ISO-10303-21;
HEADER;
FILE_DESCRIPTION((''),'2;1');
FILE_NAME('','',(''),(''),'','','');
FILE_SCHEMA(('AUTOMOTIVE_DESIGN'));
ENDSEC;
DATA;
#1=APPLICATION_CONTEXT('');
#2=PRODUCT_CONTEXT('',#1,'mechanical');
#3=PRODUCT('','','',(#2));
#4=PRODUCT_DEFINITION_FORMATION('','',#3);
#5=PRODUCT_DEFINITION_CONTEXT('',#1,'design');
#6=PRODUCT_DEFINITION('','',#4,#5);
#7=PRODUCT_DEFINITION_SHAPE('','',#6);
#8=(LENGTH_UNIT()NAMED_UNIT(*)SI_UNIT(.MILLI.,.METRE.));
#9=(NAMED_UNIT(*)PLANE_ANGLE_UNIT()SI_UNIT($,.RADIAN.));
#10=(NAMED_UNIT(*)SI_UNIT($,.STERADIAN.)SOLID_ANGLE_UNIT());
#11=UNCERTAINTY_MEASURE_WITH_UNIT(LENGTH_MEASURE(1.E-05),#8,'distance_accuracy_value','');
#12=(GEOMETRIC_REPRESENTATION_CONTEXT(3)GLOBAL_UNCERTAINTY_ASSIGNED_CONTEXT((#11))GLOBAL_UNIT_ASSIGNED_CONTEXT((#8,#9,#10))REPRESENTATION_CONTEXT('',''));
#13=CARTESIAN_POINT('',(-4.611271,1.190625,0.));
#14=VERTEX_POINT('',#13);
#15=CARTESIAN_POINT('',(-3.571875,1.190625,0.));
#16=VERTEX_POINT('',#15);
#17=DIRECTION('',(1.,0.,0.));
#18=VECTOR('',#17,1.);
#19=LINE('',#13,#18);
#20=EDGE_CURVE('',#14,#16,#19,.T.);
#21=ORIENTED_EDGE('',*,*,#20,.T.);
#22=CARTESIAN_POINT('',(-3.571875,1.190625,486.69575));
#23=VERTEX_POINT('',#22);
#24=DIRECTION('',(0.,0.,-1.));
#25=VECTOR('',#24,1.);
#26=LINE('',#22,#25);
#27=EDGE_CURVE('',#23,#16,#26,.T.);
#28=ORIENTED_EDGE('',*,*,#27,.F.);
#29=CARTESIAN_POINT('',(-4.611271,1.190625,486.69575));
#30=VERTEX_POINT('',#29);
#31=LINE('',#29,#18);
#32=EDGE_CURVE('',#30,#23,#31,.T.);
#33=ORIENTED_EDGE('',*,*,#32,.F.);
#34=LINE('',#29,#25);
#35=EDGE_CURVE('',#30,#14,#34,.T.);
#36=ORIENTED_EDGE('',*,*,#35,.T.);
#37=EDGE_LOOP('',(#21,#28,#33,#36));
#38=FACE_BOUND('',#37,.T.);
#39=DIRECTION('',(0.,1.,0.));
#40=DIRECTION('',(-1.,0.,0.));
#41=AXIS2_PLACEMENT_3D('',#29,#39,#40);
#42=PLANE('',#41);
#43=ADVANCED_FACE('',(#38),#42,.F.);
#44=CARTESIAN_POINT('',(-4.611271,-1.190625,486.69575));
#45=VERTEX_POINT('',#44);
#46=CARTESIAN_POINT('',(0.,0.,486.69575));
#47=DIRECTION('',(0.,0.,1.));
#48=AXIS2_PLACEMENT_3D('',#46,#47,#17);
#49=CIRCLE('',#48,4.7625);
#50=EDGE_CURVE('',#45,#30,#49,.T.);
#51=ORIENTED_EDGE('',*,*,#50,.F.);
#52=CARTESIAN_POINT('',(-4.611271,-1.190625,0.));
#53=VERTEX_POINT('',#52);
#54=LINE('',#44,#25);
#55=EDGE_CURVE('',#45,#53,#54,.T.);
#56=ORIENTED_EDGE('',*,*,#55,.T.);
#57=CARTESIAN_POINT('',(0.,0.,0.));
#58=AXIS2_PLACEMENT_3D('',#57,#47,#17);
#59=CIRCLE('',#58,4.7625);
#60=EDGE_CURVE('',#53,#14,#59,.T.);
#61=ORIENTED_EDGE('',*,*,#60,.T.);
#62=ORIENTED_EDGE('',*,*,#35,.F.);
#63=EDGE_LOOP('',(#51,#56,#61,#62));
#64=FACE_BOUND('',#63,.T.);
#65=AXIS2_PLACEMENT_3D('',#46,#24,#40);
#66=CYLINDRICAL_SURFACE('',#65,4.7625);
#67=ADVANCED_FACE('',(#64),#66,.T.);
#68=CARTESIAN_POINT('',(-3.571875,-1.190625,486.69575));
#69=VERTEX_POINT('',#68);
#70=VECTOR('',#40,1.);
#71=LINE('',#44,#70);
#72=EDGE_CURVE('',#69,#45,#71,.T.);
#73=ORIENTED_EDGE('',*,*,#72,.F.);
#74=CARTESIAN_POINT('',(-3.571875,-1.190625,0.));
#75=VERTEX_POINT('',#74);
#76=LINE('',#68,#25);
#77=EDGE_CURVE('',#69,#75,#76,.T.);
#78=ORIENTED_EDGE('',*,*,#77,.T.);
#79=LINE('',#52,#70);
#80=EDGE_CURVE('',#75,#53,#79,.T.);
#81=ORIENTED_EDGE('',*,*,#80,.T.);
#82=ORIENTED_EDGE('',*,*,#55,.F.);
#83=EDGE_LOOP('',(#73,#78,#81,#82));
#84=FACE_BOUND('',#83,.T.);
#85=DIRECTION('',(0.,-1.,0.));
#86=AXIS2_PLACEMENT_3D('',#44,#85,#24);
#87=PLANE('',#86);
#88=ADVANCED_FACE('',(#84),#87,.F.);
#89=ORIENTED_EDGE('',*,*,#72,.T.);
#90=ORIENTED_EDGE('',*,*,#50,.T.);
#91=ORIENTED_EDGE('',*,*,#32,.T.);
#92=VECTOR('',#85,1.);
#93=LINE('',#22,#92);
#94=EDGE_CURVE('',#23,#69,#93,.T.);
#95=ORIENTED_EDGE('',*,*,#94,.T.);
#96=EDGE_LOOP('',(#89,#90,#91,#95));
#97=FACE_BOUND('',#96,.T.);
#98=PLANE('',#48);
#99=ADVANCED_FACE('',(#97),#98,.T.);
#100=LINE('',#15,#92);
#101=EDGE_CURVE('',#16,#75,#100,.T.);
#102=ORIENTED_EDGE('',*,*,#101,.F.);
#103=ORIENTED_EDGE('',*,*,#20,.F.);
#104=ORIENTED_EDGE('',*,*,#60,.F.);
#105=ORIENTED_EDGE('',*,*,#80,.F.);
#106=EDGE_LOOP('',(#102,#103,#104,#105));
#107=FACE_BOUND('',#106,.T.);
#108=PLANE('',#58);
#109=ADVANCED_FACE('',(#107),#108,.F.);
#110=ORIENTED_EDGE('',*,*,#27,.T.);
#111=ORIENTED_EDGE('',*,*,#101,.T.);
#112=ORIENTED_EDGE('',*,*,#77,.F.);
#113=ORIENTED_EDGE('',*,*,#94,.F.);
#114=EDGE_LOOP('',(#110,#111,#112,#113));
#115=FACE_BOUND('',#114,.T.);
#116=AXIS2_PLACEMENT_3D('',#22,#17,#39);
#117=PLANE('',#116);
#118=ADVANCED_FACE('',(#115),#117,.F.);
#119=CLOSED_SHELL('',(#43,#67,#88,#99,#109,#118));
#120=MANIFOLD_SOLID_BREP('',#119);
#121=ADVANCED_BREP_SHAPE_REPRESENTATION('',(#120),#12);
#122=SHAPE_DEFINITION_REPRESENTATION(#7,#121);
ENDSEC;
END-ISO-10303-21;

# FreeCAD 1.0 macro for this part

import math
import FreeCAD as App
import Part
import Sketcher
Q = App.Units.Quantity

doc = App.newDocument("Part")
body = doc.addObject("PartDesign::Body", "Body")

# Sketch on XY plane
sketch1 = doc.addObject("Sketcher::SketchObject", "Sketch")
body.addObject(sketch1)
sketch1.AttachmentSupport = (doc.XY_Plane, [""])
sketch1.MapMode = "FlatFace"
sketch1.addGeometry([
    Part.LineSegment(App.Vector(-4.6, 1.2, 0), App.Vector(-3.6, 1.2, 0)),
    Part.LineSegment(App.Vector(-3.6, 1.2, 0), App.Vector(-3.6, -1.2, 0)),
    Part.LineSegment(App.Vector(-3.6, -1.2, 0), App.Vector(-4.6, -1.2, 0)),
    Part.ArcOfCircle(Part.Circle(App.Vector(0, 0, 0), App.Vector(0, 0, 1), 4.8), math.radians(-166), math.radians(166)),
], False)
sketch1.addConstraint([
    Sketcher.Constraint("Coincident", 0, 2, 1, 1),
    Sketcher.Constraint("Coincident", 1, 2, 2, 1),
    Sketcher.Constraint("Coincident", 2, 2, 3, 1),
    Sketcher.Constraint("Coincident", 3, 2, 0, 1),
    Sketcher.Constraint("Horizontal", 0),
    Sketcher.Constraint("Vertical", 1),
    Sketcher.Constraint("Horizontal", 2),
    Sketcher.Constraint("Coincident", 3, 3, -1, 1),
    Sketcher.Constraint("Vertical", 2, 2, 3, 2),
    Sketcher.Constraint("Radius", 3, Q("0.1875 in")),
    Sketcher.Constraint("DistanceY", 1, 2, 1, 1, Q("0.09375 in")),
    Sketcher.Constraint("DistanceX", 0, 2, -1, 1, Q("0.140625 in")),
])
pad1 = doc.addObject("PartDesign::Pad", "Pad")
body.addObject(pad1)
pad1.Profile = sketch1
pad1.Length = 486.69575

doc.recompute()
